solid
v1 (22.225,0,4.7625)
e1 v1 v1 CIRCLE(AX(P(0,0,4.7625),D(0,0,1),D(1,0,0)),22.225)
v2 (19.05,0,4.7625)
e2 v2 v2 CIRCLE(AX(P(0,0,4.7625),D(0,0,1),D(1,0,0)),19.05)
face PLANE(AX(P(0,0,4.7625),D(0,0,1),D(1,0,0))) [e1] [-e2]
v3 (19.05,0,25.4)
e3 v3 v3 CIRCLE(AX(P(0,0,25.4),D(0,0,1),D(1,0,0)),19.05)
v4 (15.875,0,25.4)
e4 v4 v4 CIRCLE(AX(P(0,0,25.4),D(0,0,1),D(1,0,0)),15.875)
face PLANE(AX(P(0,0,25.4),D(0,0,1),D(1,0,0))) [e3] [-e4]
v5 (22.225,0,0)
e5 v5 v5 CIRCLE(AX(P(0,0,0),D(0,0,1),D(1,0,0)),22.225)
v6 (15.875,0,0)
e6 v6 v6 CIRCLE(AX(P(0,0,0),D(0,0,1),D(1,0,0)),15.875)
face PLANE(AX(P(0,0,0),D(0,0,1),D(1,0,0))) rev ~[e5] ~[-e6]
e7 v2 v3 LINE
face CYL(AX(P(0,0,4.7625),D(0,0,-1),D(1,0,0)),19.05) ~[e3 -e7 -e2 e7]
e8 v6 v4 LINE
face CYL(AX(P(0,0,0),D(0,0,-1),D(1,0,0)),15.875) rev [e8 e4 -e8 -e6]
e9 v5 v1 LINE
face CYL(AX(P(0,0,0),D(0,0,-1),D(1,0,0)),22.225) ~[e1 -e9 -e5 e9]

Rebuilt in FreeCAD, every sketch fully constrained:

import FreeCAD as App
import Part
import Sketcher
from FreeCAD import Vector
Q = App.Units.Quantity

doc = App.newDocument("Part")
params = doc.addObject("Spreadsheet::Sheet", "Params")
for row, (alias, value) in enumerate([
    ("sketch1_diameter", "1.75 in"),
    ("sketch1_diameter2", "1.25 in"),
    ("pad1_length", "0.1875 in"),
    ("sketch2_diameter", "1.5 in"),
    ("sketch2_diameter2", "1.25 in"),
    ("pad2_length", "0.8125 in"),
], start=1):
    params.set(f"A{row}", alias)
    params.set(f"B{row}", "=" + value)
    params.setAlias(f"B{row}", alias)

body = doc.addObject("PartDesign::Body", "Body")

sketch1 = body.newObject("Sketcher::SketchObject", "Sketch")
sketch1.AttachmentSupport = (doc.getObject("XY_Plane"), [""])
sketch1.MapMode = "FlatFace"
sketch1.addGeometry([
    Part.Circle(Vector(0, 0, 0), Vector(0, 0, 1), 22.225),
    Part.Circle(Vector(0, 0, 0), Vector(0, 0, 1), 15.875),
], False)
sketch1.addConstraint([
    Sketcher.Constraint("Coincident", 0, 3, -1, 1),
    Sketcher.Constraint("Coincident", 1, 3, -1, 1),
    Sketcher.Constraint("Diameter", 0, Q("1.75 in")),
    Sketcher.Constraint("Diameter", 1, Q("1.25 in")),
])
sketch1.setExpression("Constraints[2]", "Params.sketch1_diameter")
sketch1.setExpression("Constraints[3]", "Params.sketch1_diameter2")
pad1 = body.newObject("PartDesign::Pad", "Pad")
pad1.Profile = sketch1
pad1.setExpression("Length", "Params.pad1_length")

sketch2 = body.newObject("Sketcher::SketchObject", "Sketch001")
sketch2.AttachmentSupport = (doc.getObject("XY_Plane"), [""])
sketch2.MapMode = "FlatFace"
sketch2.AttachmentOffset = App.Placement(Vector(0, 0, 0.1875 * 25.4), App.Rotation())
sketch2.addGeometry([
    Part.Circle(Vector(0, 0, 0), Vector(0, 0, 1), 19.05),
    Part.Circle(Vector(0, 0, 0), Vector(0, 0, 1), 15.875),
], False)
sketch2.addConstraint([
    Sketcher.Constraint("Coincident", 0, 3, -1, 1),
    Sketcher.Constraint("Coincident", 1, 3, -1, 1),
    Sketcher.Constraint("Diameter", 0, Q("1.5 in")),
    Sketcher.Constraint("Diameter", 1, Q("1.25 in")),
])
sketch2.setExpression("Constraints[2]", "Params.sketch2_diameter")
sketch2.setExpression("Constraints[3]", "Params.sketch2_diameter2")
pad2 = body.newObject("PartDesign::Pad", "Pad001")
pad2.Profile = sketch2
pad2.setExpression("Length", "Params.pad2_length")

doc.recompute()
